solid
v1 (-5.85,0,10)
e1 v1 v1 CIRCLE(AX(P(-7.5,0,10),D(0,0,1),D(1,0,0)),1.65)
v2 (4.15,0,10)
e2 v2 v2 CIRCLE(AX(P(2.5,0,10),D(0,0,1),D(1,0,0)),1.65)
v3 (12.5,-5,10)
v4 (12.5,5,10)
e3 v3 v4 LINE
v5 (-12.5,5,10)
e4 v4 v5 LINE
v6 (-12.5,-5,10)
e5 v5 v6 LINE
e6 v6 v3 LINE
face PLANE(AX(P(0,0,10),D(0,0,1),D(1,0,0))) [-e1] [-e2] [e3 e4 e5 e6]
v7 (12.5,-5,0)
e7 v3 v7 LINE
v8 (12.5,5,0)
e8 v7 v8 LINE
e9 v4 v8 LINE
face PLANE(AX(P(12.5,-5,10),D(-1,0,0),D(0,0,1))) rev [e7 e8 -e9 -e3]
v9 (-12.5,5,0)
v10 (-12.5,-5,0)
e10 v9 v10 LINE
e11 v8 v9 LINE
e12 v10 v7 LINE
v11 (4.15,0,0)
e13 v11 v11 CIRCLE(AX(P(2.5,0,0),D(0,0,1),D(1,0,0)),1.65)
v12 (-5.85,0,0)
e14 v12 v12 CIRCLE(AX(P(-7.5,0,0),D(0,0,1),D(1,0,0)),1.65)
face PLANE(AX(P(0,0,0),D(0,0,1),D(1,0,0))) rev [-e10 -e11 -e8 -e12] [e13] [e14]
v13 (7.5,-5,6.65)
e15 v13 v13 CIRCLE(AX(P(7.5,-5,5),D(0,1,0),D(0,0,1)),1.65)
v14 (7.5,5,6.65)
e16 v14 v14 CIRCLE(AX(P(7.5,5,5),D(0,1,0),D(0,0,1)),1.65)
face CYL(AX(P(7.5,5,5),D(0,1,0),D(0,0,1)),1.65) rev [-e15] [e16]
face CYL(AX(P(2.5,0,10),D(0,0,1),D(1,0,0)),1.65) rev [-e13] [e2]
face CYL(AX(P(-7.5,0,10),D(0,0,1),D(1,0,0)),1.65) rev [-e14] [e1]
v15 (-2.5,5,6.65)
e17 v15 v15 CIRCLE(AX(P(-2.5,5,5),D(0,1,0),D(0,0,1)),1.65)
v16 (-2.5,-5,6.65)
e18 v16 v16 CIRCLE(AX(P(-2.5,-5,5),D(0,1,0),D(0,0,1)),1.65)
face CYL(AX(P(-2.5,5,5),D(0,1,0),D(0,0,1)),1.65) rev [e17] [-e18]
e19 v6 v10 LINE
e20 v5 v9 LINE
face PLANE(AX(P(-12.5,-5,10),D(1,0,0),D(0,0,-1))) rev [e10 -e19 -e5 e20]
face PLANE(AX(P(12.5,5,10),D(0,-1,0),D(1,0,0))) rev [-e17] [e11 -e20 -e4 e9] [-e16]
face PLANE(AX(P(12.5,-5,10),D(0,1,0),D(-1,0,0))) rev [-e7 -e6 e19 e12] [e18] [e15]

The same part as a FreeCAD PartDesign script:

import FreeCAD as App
import Part
import Sketcher
from FreeCAD import Vector
Q = App.Units.Quantity


def add_polygon(sketch, points):
    """Adds a closed chain of lines whose ends are joined by coincident constraints."""
    first, n = sketch.GeometryCount, len(points)
    for a, b in zip(points, points[1:] + points[:1]):
        sketch.addGeometry(Part.LineSegment(App.Vector(*a, 0), App.Vector(*b, 0)), False)
    for i in range(n):
        sketch.addConstraint(Sketcher.Constraint("Coincident", first + i, 2, first + (i + 1) % n, 1))

doc = App.newDocument("Part")
params = doc.addObject("Spreadsheet::Sheet", "Params")
for row, (alias, value) in enumerate([
    ("sketch1_width", "25 mm"),
    ("sketch1_height", "10 mm"),
    ("pad1_length", "10 mm"),
    ("sketch2_diameter", "3.3 mm"),
    ("hole_diameter", "3.3 mm"),
    ("sketch3_diameter", "3.3 mm"),
    ("hole2_diameter", "3.3 mm"),
], start=1):
    params.set(f"A{row}", alias)
    params.set(f"B{row}", "=" + value)
    params.setAlias(f"B{row}", alias)

body = doc.addObject("PartDesign::Body", "Body")

sketch1 = body.newObject("Sketcher::SketchObject", "Sketch")
sketch1.AttachmentSupport = (doc.getObject("XY_Plane"), [""])
sketch1.MapMode = "FlatFace"
add_polygon(sketch1, [(-12, 5), (-12, -5), (12, -5), (12, 5)])
sketch1.addConstraint([
    Sketcher.Constraint("Vertical", 0),
    Sketcher.Constraint("Horizontal", 1),
    Sketcher.Constraint("Vertical", 2),
    Sketcher.Constraint("Horizontal", 3),
    Sketcher.Constraint("Symmetric", 0, 2, 2, 2, -1, 1),
    Sketcher.Constraint("DistanceX", 1, 1, 1, 2, Q("25 mm")),
    Sketcher.Constraint("DistanceY", 0, 2, 0, 1, Q("10 mm")),
])
sketch1.setExpression("Constraints[9]", "Params.sketch1_width")
sketch1.setExpression("Constraints[10]", "Params.sketch1_height")
pad1 = body.newObject("PartDesign::Pad", "Pad")
pad1.Profile = sketch1
pad1.setExpression("Length", "Params.pad1_length")

sketch2 = body.newObject("Sketcher::SketchObject", "Sketch001")
sketch2.AttachmentSupport = (doc.getObject("XZ_Plane"), [""])
sketch2.MapMode = "FlatFace"
sketch2.AttachmentOffset = App.Placement(Vector(0, 0, -5), App.Rotation())
sketch2.addGeometry([
    Part.Circle(Vector(-2.5, 5, 0), Vector(0, 0, 1), 1.6),
    Part.Circle(Vector(7.5, 5, 0), Vector(0, 0, 1), 1.6),
], False)
sketch2.addConstraint([
    Sketcher.Constraint("Equal", 0, 1),
    Sketcher.Constraint("Horizontal", 0, 3, 1, 3),
    Sketcher.Constraint("Diameter", 0, Q("3.3 mm")),
    Sketcher.Constraint("DistanceY", -1, 1, 0, 3, Q("5 mm")),
    Sketcher.Constraint("DistanceX", 0, 3, 1, 3, Q("10 mm")),
    Sketcher.Constraint("DistanceX", 0, 3, -1, 1, Q("2.5 mm")),
])
sketch2.setExpression("Constraints[2]", "Params.sketch2_diameter")
doc.recompute()
hole = body.newObject("PartDesign::Hole", "Hole")
hole.Profile = sketch2
hole.ThreadType = "None"
hole.setExpression("Diameter", "Params.hole_diameter")
hole.DepthType = "ThroughAll"
hole.Reversed = True

sketch3 = body.newObject("Sketcher::SketchObject", "Sketch002")
sketch3.AttachmentSupport = (doc.getObject("XY_Plane"), [""])
sketch3.MapMode = "FlatFace"
sketch3.AttachmentOffset = App.Placement(Vector(0, 0, 10), App.Rotation())
sketch3.addGeometry([
    Part.Circle(Vector(2.5, 0, 0), Vector(0, 0, 1), 1.6),
    Part.Circle(Vector(-7.5, 0, 0), Vector(0, 0, 1), 1.6),
], False)
sketch3.addConstraint([
    Sketcher.Constraint("Equal", 0, 1),
    Sketcher.Constraint("PointOnObject", 0, 3, -1),
    Sketcher.Constraint("PointOnObject", 1, 3, -1),
    Sketcher.Constraint("Diameter", 0, Q("3.3 mm")),
    Sketcher.Constraint("DistanceX", 1, 3, 0, 3, Q("10 mm")),
    Sketcher.Constraint("DistanceX", -1, 1, 0, 3, Q("2.5 mm")),
])
sketch3.setExpression("Constraints[3]", "Params.sketch3_diameter")
doc.recompute()
hole2 = body.newObject("PartDesign::Hole", "Hole001")
hole2.Profile = sketch3
hole2.ThreadType = "None"
hole2.setExpression("Diameter", "Params.hole2_diameter")
hole2.DepthType = "ThroughAll"

doc.recompute()
